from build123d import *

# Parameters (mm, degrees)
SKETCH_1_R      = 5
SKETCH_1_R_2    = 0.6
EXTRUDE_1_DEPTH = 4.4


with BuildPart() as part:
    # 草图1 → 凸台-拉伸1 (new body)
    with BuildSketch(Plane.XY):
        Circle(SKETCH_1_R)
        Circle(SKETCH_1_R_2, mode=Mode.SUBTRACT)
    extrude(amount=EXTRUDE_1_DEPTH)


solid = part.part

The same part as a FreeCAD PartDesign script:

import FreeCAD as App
import Part
import Sketcher

V = App.Vector

doc = App.newDocument("Part")
body = doc.addObject("PartDesign::Body", "Body")

# Sketch on XY plane
sketch1 = body.newObject("Sketcher::SketchObject", "Sketch")
sketch1.AttachmentSupport = (doc.getObject("XY_Plane"), [""])
sketch1.MapMode = "FlatFace"
sketch1.addGeometry(Part.Circle(V(0, 0, 0), V(0, 0, 1), 5), False)
sketch1.addGeometry(Part.Circle(V(0, 0, 0), V(0, 0, 1), 0.6), False)
sketch1.addConstraint(Sketcher.Constraint("Coincident", 0, 3, -1, 1))
sketch1.addConstraint(Sketcher.Constraint("Coincident", 1, 3, -1, 1))
sketch1.addConstraint(Sketcher.Constraint("Diameter", 0, 10.0))
sketch1.addConstraint(Sketcher.Constraint("Diameter", 1, 1.2))
pad1 = body.newObject("PartDesign::Pad", "Pad")
pad1.Profile = sketch1
pad1.Length = 4.4

doc.recompute()
